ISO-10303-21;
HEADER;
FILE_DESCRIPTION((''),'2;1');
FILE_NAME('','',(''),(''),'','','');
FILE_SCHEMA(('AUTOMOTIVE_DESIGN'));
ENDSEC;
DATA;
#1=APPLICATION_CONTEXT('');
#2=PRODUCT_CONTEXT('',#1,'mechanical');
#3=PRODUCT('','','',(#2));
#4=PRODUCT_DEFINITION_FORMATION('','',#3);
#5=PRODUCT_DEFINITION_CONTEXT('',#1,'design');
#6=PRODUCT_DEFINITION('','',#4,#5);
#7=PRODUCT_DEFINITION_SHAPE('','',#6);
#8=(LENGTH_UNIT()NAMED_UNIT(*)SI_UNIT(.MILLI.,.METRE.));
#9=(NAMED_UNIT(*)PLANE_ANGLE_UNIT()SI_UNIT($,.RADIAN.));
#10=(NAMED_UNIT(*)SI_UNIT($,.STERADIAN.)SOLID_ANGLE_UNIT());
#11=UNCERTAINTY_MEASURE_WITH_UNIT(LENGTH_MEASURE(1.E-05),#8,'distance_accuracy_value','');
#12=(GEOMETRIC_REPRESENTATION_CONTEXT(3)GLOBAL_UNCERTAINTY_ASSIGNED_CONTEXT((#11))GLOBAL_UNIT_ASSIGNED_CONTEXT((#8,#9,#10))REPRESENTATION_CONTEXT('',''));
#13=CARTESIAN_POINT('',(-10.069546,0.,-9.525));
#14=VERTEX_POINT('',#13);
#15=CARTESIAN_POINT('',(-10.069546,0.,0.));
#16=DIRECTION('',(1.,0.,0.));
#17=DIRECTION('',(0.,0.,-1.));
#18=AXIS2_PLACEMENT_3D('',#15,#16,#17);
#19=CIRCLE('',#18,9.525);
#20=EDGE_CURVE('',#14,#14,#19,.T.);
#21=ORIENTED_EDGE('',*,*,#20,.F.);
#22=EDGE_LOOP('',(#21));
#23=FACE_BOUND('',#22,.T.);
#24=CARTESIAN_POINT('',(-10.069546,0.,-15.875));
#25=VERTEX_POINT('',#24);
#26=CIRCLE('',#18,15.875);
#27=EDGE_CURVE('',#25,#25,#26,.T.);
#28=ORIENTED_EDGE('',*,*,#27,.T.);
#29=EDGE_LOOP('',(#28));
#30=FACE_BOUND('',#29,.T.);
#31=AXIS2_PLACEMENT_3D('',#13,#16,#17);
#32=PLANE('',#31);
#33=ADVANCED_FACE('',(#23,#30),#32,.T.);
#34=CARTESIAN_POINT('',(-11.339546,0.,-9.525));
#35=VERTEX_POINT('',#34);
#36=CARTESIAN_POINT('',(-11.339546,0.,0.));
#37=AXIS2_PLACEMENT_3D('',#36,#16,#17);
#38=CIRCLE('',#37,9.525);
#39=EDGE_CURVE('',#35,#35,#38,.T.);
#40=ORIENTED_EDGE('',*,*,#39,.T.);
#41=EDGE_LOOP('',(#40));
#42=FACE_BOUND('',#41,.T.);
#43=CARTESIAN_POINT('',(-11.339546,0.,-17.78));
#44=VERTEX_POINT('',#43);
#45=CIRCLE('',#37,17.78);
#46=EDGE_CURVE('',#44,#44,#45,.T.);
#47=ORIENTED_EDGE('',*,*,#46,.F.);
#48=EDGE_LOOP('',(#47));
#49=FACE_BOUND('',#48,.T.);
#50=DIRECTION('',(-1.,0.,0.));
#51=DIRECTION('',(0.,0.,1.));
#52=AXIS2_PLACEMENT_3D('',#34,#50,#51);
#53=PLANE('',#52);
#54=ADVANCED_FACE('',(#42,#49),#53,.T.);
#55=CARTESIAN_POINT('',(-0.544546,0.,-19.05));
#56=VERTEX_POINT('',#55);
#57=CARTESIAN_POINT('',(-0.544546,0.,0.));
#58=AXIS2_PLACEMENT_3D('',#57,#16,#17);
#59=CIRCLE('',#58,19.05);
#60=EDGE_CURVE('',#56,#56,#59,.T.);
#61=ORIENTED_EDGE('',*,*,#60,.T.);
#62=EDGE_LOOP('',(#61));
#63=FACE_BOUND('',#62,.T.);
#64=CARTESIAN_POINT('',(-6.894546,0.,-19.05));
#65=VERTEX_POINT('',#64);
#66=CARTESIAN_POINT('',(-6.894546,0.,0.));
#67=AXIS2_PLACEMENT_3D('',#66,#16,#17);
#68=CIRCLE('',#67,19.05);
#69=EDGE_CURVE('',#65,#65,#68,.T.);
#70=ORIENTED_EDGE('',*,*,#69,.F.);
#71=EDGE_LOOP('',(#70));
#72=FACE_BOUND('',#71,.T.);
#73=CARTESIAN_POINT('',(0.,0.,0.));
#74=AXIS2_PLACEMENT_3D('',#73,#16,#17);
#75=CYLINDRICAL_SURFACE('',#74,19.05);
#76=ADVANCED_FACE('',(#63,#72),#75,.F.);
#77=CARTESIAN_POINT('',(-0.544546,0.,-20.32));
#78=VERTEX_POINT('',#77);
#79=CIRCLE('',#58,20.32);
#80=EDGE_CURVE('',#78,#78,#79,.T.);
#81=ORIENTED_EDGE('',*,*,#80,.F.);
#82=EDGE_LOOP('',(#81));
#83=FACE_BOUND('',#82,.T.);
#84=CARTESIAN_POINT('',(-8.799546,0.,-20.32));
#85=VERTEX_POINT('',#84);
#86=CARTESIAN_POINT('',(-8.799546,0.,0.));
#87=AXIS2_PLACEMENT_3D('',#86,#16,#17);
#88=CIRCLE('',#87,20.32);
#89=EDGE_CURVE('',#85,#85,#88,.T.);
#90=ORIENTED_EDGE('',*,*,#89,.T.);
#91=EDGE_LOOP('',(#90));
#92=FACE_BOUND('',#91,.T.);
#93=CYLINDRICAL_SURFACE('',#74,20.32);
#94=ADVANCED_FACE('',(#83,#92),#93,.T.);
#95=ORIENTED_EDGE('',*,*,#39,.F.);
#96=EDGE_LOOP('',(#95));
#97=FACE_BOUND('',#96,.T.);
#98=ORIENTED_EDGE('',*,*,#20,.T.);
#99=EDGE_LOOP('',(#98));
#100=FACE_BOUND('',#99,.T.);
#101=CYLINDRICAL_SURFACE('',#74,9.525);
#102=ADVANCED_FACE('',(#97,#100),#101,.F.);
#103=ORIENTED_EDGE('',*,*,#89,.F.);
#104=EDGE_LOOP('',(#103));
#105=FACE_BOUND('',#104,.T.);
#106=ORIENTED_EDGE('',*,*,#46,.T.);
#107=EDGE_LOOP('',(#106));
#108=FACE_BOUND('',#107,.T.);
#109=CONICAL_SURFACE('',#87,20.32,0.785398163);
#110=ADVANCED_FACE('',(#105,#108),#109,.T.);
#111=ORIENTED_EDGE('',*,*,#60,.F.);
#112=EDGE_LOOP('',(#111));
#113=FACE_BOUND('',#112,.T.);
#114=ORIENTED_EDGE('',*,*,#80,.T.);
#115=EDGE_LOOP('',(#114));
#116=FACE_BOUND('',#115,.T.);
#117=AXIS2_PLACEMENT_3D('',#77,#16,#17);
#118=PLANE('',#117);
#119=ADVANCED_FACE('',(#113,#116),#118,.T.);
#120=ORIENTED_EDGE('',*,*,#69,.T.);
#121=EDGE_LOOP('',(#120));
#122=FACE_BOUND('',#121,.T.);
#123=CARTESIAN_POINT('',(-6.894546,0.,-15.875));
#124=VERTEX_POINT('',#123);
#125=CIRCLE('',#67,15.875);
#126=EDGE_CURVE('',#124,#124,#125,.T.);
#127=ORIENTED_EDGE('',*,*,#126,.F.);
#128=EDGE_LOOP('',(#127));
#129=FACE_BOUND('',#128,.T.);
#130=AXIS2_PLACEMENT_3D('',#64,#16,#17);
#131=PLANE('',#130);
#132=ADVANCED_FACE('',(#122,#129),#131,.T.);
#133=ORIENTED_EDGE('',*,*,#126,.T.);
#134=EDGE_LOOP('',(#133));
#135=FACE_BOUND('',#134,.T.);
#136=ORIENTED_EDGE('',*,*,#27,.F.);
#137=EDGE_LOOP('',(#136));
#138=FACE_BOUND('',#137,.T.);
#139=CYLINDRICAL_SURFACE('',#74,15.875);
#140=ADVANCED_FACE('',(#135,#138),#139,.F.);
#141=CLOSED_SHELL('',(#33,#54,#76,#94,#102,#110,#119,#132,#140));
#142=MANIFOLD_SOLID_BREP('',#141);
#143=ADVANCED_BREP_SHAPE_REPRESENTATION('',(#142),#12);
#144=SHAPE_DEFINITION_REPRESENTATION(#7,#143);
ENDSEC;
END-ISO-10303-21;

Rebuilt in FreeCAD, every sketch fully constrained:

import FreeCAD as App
import Part
import Sketcher

V = App.Vector
Q = App.Units.Quantity


def add_polygon(sketch, points):
    """Adds a closed chain of lines whose ends are joined by coincident constraints."""
    first, n = sketch.GeometryCount, len(points)
    for a, b in zip(points, points[1:] + points[:1]):
        sketch.addGeometry(Part.LineSegment(App.Vector(*a, 0), App.Vector(*b, 0)), False)
    for i in range(n):
        sketch.addConstraint(Sketcher.Constraint("Coincident", first + i, 2, first + (i + 1) % n, 1))

doc = App.newDocument("Part")
body = doc.addObject("PartDesign::Body", "Body")

# Sketch on XZ plane
sketch1 = body.newObject("Sketcher::SketchObject", "Sketch")
sketch1.AttachmentSupport = (doc.getObject("XZ_Plane"), [""])
sketch1.MapMode = "FlatFace"
add_polygon(sketch1, [(-11.3, -9.5), (-10.1, -9.5), (-10.1, -15.9), (-6.9, -15.9), (-6.9, -19.1), (-0.5, -19.1), (-0.5, -20.3), (-8.8, -20.3), (-11.3, -17.8)])  # lines 0-8
sketch1.addConstraint(Sketcher.Constraint("Horizontal", 0))
sketch1.addConstraint(Sketcher.Constraint("Vertical", 1))
sketch1.addConstraint(Sketcher.Constraint("Horizontal", 2))
sketch1.addConstraint(Sketcher.Constraint("Vertical", 3))
sketch1.addConstraint(Sketcher.Constraint("Horizontal", 4))
sketch1.addConstraint(Sketcher.Constraint("Vertical", 5))
sketch1.addConstraint(Sketcher.Constraint("Horizontal", 6))
sketch1.addConstraint(Sketcher.Constraint("Vertical", 8))
sketch1.addConstraint(Sketcher.Constraint("Equal", 4, 1))
sketch1.addConstraint(Sketcher.Constraint("Equal", 2, 3))
sketch1.addConstraint(Sketcher.Constraint("Equal", 0, 5))
sketch1.addConstraint(Sketcher.Constraint("Equal", 6, 8))
sketch1.addConstraint(Sketcher.Constraint("DistanceX", 0, 1, 0, 2, Q("0.05 in")))
sketch1.addConstraint(Sketcher.Constraint("DistanceX", 4, 1, 4, 2, Q("0.25 in")))
sketch1.addConstraint(Sketcher.Constraint("DistanceY", 5, 2, -1, 1, Q("0.8 in")))
sketch1.addConstraint(Sketcher.Constraint("DistanceY", 7, 2, -1, 1, Q("0.7 in")))
sketch1.addConstraint(Sketcher.Constraint("DistanceX", 2, 1, 2, 2, Q("0.125 in")))
sketch1.addConstraint(Sketcher.Constraint("DistanceX", 0, 2, -1, 1, Q("10.069546 mm")))
revolution = body.newObject("PartDesign::Revolution", "Revolution")
revolution.Profile = sketch1
revolution.ReferenceAxis = (sketch1, ["H_Axis"])
revolution.Angle = 360

doc.recompute()
